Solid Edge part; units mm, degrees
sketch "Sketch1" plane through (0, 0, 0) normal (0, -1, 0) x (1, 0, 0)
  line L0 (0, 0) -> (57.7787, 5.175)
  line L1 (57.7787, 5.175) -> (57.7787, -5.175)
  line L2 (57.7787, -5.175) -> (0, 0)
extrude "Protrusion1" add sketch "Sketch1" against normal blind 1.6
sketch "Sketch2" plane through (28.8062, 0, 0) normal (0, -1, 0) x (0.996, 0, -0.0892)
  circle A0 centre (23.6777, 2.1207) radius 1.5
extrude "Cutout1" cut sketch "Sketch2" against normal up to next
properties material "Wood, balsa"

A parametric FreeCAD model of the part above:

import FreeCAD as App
import Part
import Sketcher
Q = App.Units.Quantity

doc = App.newDocument("Part")
params = doc.addObject("Spreadsheet::Sheet", "Params")
for row, (alias, value) in enumerate([
    ("pad1_length", "0.0629921 in"),
], start=1):
    params.set(f"A{row}", alias)
    params.set(f"B{row}", "=" + value)
    params.setAlias(f"B{row}", alias)

body = doc.addObject("PartDesign::Body", "Body")

# Sketch on XZ plane
sketch1 = body.newObject("Sketcher::SketchObject", "Sketch")
sketch1.AttachmentSupport = (doc.getObject("XZ_Plane"), [""])
sketch1.MapMode = "FlatFace"
sketch1.addGeometry(Part.LineSegment(App.Vector(58, 5, 0), App.Vector(0, 0, 0)), False)
sketch1.addGeometry(Part.LineSegment(App.Vector(0, 0, 0), App.Vector(58, -5, 0)), False)
sketch1.addGeometry(Part.LineSegment(App.Vector(58, -5, 0), App.Vector(58, 5, 0)), False)
sketch1.addConstraint(Sketcher.Constraint("Coincident", 0, 2, 1, 1))
sketch1.addConstraint(Sketcher.Constraint("Coincident", 1, 2, 2, 1))
sketch1.addConstraint(Sketcher.Constraint("Coincident", 2, 2, 0, 1))
sketch1.addConstraint(Sketcher.Constraint("Vertical", 2))
sketch1.addConstraint(Sketcher.Constraint("Coincident", 0, 2, -1, 1))
sketch1.addConstraint(Sketcher.Constraint("Equal", 0, 1))
sketch1.addConstraint(Sketcher.Constraint("DistanceY", 2, 1, 2, 2, 10.35))
sketch1.addConstraint(Sketcher.Constraint("Distance", 0, 58.01))
pad1 = body.newObject("PartDesign::Pad", "Pad")
pad1.Profile = sketch1
pad1.setExpression("Length", "Params.pad1_length")
pad1.Reversed = True

# Sketch on XZ plane
sketch2 = body.newObject("Sketcher::SketchObject", "Sketch001")
sketch2.AttachmentSupport = (doc.getObject("XZ_Plane"), [""])
sketch2.MapMode = "FlatFace"
sketch2.addGeometry(Part.Circle(App.Vector(52.6, 0, 0), App.Vector(0, 0, 1), 1.5), False)
sketch2.addConstraint(Sketcher.Constraint("PointOnObject", 0, 3, -1))
sketch2.addConstraint(Sketcher.Constraint("Diameter", 0, Q("0.1181 in")))
sketch2.addConstraint(Sketcher.Constraint("DistanceX", -1, 1, 0, 3, 52.5787))
pocket1 = body.newObject("PartDesign::Pocket", "Pocket")
pocket1.Profile = sketch2
pocket1.Type = "UpToFirst"

doc.recompute()
